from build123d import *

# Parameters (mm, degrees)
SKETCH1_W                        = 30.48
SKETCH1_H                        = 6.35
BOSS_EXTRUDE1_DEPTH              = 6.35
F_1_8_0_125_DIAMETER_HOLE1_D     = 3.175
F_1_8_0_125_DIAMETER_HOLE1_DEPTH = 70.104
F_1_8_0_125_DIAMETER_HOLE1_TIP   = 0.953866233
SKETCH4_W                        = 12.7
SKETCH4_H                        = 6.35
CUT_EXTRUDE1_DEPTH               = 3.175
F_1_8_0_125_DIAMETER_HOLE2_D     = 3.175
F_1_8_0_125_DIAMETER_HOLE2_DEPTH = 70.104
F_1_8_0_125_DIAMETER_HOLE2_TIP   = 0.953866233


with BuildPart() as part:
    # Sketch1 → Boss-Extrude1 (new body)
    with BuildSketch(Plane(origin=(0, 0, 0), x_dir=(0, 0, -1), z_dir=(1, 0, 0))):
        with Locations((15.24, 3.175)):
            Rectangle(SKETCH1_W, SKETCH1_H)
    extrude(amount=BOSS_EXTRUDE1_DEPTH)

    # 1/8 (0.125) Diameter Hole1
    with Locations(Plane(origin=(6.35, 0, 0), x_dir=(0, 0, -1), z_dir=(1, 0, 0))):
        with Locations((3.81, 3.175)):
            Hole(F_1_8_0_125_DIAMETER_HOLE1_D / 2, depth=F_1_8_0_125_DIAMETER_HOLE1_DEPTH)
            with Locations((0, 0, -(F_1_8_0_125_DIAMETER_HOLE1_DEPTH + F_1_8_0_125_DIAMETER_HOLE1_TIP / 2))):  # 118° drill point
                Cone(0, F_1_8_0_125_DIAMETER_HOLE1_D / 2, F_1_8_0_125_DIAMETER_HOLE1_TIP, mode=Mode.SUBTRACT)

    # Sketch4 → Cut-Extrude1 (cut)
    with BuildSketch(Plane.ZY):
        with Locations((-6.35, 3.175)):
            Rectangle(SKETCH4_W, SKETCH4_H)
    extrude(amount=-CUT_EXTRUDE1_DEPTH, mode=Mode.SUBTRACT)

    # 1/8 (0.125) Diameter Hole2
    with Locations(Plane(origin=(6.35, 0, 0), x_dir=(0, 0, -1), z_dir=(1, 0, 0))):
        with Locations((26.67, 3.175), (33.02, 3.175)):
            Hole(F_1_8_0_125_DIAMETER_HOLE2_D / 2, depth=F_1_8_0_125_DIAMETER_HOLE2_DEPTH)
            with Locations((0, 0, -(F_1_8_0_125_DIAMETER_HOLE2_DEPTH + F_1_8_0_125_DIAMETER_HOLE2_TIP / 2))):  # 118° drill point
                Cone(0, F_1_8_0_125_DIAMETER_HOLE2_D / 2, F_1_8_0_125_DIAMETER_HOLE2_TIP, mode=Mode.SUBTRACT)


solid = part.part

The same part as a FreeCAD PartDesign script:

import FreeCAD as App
import Part
import Sketcher
from FreeCAD import Vector
Q = App.Units.Quantity


def add_polygon(sketch, points):
    """Adds a closed chain of lines whose ends are joined by coincident constraints."""
    first, n = sketch.GeometryCount, len(points)
    for a, b in zip(points, points[1:] + points[:1]):
        sketch.addGeometry(Part.LineSegment(App.Vector(*a, 0), App.Vector(*b, 0)), False)
    for i in range(n):
        sketch.addConstraint(Sketcher.Constraint("Coincident", first + i, 2, first + (i + 1) % n, 1))

doc = App.newDocument("Part")
body = doc.addObject("PartDesign::Body", "Body")

# Sketch on YZ plane
sketch1 = body.newObject("Sketcher::SketchObject", "Sketch")
sketch1.AttachmentSupport = (doc.getObject("YZ_Plane"), [""])
sketch1.MapMode = "FlatFace"
add_polygon(sketch1, [(6, 0), (0, 0), (0, -30), (6, -30)])  # lines 0-3
sketch1.addConstraint([
    Sketcher.Constraint("Horizontal", 0),
    Sketcher.Constraint("Vertical", 1),
    Sketcher.Constraint("Horizontal", 2),
    Sketcher.Constraint("Vertical", 3),
    Sketcher.Constraint("Coincident", 0, 2, -1, 1),
    Sketcher.Constraint("DistanceY", 1, 2, 1, 1, Q("1.2 in")),
    Sketcher.Constraint("DistanceX", 0, 2, 0, 1, Q("0.25 in")),
])
pad1 = body.newObject("PartDesign::Pad", "Pad")
pad1.Profile = sketch1
pad1.Length = Q("0.25 in")

# Sketch on YZ plane
sketch2 = body.newObject("Sketcher::SketchObject", "Sketch001")
sketch2.AttachmentSupport = (doc.getObject("YZ_Plane"), [""])
sketch2.MapMode = "FlatFace"
sketch2.AttachmentOffset = App.Placement(Vector(0, 0, 0.25 * 25.4), App.Rotation())
sketch2.addGeometry(Part.Circle(Vector(3.2, -3.8, 0), Vector(0, 0, 1), 1.6), False)
sketch2.addConstraint([
    Sketcher.Constraint("Diameter", 0, Q("0.125 in")),
    Sketcher.Constraint("DistanceY", 0, 3, -1, 1, Q("0.15 in")),
    Sketcher.Constraint("DistanceX", -1, 1, 0, 3, Q("0.125 in")),
])
doc.recompute()
hole = body.newObject("PartDesign::Hole", "Hole")
hole.Profile = sketch2
hole.ThreadType = "None"
hole.Diameter = Q("0.125 in")
hole.DepthType = "Dimension"
hole.Depth = Q("2.76 in")
hole.DrillPoint = "Angled"
hole.DrillPointAngle = 118

# Sketch on YZ plane
sketch3 = body.newObject("Sketcher::SketchObject", "Sketch002")
sketch3.AttachmentSupport = (doc.getObject("YZ_Plane"), [""])
sketch3.MapMode = "FlatFace"
add_polygon(sketch3, [(6, -13), (0, -13), (0, 0), (6, 0)])  # lines 0-3
sketch3.addConstraint([
    Sketcher.Constraint("Horizontal", 0),
    Sketcher.Constraint("Vertical", 1),
    Sketcher.Constraint("Horizontal", 2),
    Sketcher.Constraint("Vertical", 3),
    Sketcher.Constraint("Coincident", 1, 2, -1, 1),
    Sketcher.Constraint("DistanceY", 1, 1, 1, 2, Q("0.5 in")),
    Sketcher.Constraint("DistanceX", 0, 2, 0, 1, Q("0.25 in")),
])
pocket1 = body.newObject("PartDesign::Pocket", "Pocket")
pocket1.Profile = sketch3
pocket1.Length = Q("0.125 in")
pocket1.Reversed = True

# Sketch on YZ plane
sketch4 = body.newObject("Sketcher::SketchObject", "Sketch003")
sketch4.AttachmentSupport = (doc.getObject("YZ_Plane"), [""])
sketch4.MapMode = "FlatFace"
sketch4.AttachmentOffset = App.Placement(Vector(0, 0, 0.25 * 25.4), App.Rotation())
sketch4.addGeometry([
    Part.Circle(Vector(3.2, -26.7, 0), Vector(0, 0, 1), 1.6),
    Part.Circle(Vector(3.2, -33, 0), Vector(0, 0, 1), 1.6),
], False)
sketch4.addConstraint([
    Sketcher.Constraint("Equal", 0, 1),
    Sketcher.Constraint("Vertical", 0, 3, 1, 3),
    Sketcher.Constraint("Diameter", 0, Q("0.125 in")),
    Sketcher.Constraint("DistanceY", 1, 3, -1, 1, Q("1.3 in")),
    Sketcher.Constraint("DistanceY", 0, 3, -1, 1, Q("1.05 in")),
    Sketcher.Constraint("DistanceX", -1, 1, 0, 3, Q("0.125 in")),
])
doc.recompute()
hole2 = body.newObject("PartDesign::Hole", "Hole001")
hole2.Profile = sketch4
hole2.ThreadType = "None"
hole2.Diameter = Q("0.125 in")
hole2.DepthType = "Dimension"
hole2.Depth = Q("2.76 in")
hole2.DrillPoint = "Angled"
hole2.DrillPointAngle = 118

doc.recompute()
